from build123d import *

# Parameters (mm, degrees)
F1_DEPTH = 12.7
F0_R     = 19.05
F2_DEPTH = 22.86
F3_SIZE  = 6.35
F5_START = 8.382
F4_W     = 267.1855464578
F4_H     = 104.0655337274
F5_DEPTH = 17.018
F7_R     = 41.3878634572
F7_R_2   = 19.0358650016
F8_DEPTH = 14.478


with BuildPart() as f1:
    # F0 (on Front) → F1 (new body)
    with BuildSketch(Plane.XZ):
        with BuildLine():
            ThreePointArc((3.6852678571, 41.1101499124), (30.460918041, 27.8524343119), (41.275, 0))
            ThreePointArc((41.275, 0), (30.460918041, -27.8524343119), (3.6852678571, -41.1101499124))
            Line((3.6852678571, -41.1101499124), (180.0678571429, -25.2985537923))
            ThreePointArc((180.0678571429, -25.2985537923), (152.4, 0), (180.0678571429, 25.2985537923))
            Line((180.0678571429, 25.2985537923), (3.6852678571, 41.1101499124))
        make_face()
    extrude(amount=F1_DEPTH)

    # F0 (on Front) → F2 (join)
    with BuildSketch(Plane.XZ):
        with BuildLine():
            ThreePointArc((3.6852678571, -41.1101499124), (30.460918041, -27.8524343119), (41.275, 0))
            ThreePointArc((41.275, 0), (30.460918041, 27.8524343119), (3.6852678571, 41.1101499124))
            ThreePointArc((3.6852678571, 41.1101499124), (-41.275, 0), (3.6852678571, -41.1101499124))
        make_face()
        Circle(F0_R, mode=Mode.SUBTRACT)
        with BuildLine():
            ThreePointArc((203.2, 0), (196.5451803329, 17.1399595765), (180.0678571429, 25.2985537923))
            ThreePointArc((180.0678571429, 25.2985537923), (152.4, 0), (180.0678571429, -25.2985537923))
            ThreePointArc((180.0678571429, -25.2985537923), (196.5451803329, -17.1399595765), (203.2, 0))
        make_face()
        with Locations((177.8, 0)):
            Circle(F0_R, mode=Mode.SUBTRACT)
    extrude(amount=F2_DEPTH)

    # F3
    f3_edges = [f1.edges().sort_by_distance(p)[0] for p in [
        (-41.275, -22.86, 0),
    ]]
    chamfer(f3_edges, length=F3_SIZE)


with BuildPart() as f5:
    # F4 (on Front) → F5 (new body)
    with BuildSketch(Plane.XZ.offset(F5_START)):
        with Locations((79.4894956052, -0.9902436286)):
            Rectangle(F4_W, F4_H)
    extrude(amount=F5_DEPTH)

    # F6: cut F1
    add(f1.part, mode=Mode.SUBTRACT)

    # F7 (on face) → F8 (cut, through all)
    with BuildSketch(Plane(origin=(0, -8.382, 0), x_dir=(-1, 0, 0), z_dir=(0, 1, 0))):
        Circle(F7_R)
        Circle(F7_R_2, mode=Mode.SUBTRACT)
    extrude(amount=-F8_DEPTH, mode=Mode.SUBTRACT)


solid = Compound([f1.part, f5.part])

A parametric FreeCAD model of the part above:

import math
import FreeCAD as App
import Part
import Sketcher
Q = App.Units.Quantity


def edges_at(feature, points):
    """Names of the edges that pass closest to the given points."""
    edges = feature.Shape.Edges
    near = lambda p: min(range(len(edges)), key=lambda i: edges[i].distToShape(Part.Vertex(*p))[0])
    return sorted({f"Edge{near(p) + 1}" for p in points})


def add_polygon(sketch, points):
    """Adds a closed chain of lines whose ends are joined by coincident constraints."""
    first, n = sketch.GeometryCount, len(points)
    for a, b in zip(points, points[1:] + points[:1]):
        sketch.addGeometry(Part.LineSegment(App.Vector(*a, 0), App.Vector(*b, 0)), False)
    for i in range(n):
        sketch.addConstraint(Sketcher.Constraint("Coincident", first + i, 2, first + (i + 1) % n, 1))

doc = App.newDocument("Part")
body = doc.addObject("PartDesign::Body", "Body")

# Sketch on XZ plane
sketch1 = body.newObject("Sketcher::SketchObject", "Sketch")
sketch1.AttachmentSupport = (doc.getObject("XZ_Plane"), [""])
sketch1.MapMode = "FlatFace"
sketch1.addGeometry([
    Part.ArcOfCircle(Part.Circle(App.Vector(0, 0, 0), App.Vector(0, 0, 1), 41), math.radians(-85), math.radians(85)),
    Part.LineSegment(App.Vector(4, -41, 0), App.Vector(180, -25, 0)),
    Part.ArcOfCircle(Part.Circle(App.Vector(178, 0, 0), App.Vector(0, 0, 1), 25), math.radians(85), math.radians(275)),
    Part.LineSegment(App.Vector(180, 25, 0), App.Vector(4, 41, 0)),
], False)
sketch1.addConstraint([
    Sketcher.Constraint("Tangent", 0, 1, 1, 1),
    Sketcher.Constraint("Tangent", 1, 2, 2, 2),
    Sketcher.Constraint("Tangent", 2, 1, 3, 1),
    Sketcher.Constraint("Tangent", 3, 2, 0, 2),
    Sketcher.Constraint("Coincident", 0, 3, -1, 1),
    Sketcher.Constraint("PointOnObject", 2, 3, -1),
    Sketcher.Constraint("Radius", 2, Q("1 in")),
    Sketcher.Constraint("DistanceX", -1, 1, 2, 3, Q("7 in")),
    Sketcher.Constraint("Radius", 0, Q("1.625 in")),
])
pad1 = body.newObject("PartDesign::Pad", "Pad")
pad1.Profile = sketch1
pad1.Length = Q("0.5 in")

# Sketch on XZ plane
sketch2 = body.newObject("Sketcher::SketchObject", "Sketch001")
sketch2.AttachmentSupport = (doc.getObject("XZ_Plane"), [""])
sketch2.MapMode = "FlatFace"
sketch2.addGeometry([
    Part.Circle(App.Vector(0, 0, 0), App.Vector(0, 0, 1), 41),  # 0
    Part.Circle(App.Vector(0, 0, 0), App.Vector(0, 0, 1), 19),  # 1
    Part.ArcOfCircle(Part.Circle(App.Vector(178, 0, 0), App.Vector(0, 0, 1), 25), math.radians(0), math.radians(85)),  # 2
    Part.ArcOfCircle(Part.Circle(App.Vector(178, 0, 0), App.Vector(0, 0, 1), 25), math.radians(85), math.radians(275)),  # 3
    Part.ArcOfCircle(Part.Circle(App.Vector(178, 0, 0), App.Vector(0, 0, 1), 25), math.radians(-85), math.radians(0)),  # 4
    Part.Circle(App.Vector(178, 0, 0), App.Vector(0, 0, 1), 19),  # 5
], False)
sketch2.addConstraint([
    Sketcher.Constraint("Tangent", 2, 2, 3, 1),
    Sketcher.Constraint("Tangent", 3, 2, 4, 1),
    Sketcher.Constraint("Tangent", 4, 2, 2, 1),
    Sketcher.Constraint("Coincident", 0, 3, -1, 1),
    Sketcher.Constraint("Coincident", 1, 3, -1, 1),
    Sketcher.Constraint("Coincident", 5, 3, 2, 3),
    Sketcher.Constraint("Equal", 1, 5),
    Sketcher.Constraint("Symmetric", 2, 2, 3, 2, -1),
    Sketcher.Constraint("PointOnObject", 4, 2, -1),
    Sketcher.Constraint("Radius", 2, Q("1 in")),
    Sketcher.Constraint("Diameter", 1, Q("1.5 in")),
    Sketcher.Constraint("Diameter", 0, Q("3.25 in")),
    Sketcher.Constraint("DistanceX", -1, 1, 2, 3, Q("7 in")),
    Sketcher.Constraint("DistanceX", -1, 1, 2, 2, 180.067857),
])
pad2 = body.newObject("PartDesign::Pad", "Pad001")
pad2.Profile = sketch2
pad2.Length = Q("0.9 in")
doc.recompute()

chamfer = body.newObject("PartDesign::Chamfer", "Chamfer")
chamfer.Base = (pad2, edges_at(pad2, [(-3.685, -22.86, -41.11)]))
chamfer.Size = Q("0.25 in")
body2 = doc.addObject("PartDesign::Body", "Body001")

# Sketch on XZ plane
sketch3 = body2.newObject("Sketcher::SketchObject", "Sketch002")
sketch3.AttachmentSupport = (doc.getObject("XZ_Plane001"), [""])
sketch3.MapMode = "FlatFace"
sketch3.AttachmentOffset = App.Placement(App.Vector(0, 0, 0.33 * 25.4), App.Rotation())
add_polygon(sketch3, [(-54, 51), (-54, -53), (213, -53), (213, 51)])  # lines 0-3
sketch3.addConstraint([
    Sketcher.Constraint("Vertical", 0),
    Sketcher.Constraint("Horizontal", 1),
    Sketcher.Constraint("Vertical", 2),
    Sketcher.Constraint("Horizontal", 3),
    Sketcher.Constraint("DistanceX", 1, 1, 1, 2, 267.185546),
    Sketcher.Constraint("DistanceY", 0, 2, 0, 1, 104.065534),
    Sketcher.Constraint("DistanceY", 0, 2, -1, 1, 53.02301),
    Sketcher.Constraint("DistanceX", -1, 1, 1, 2, 213.082269),
])
pad3 = body2.newObject("PartDesign::Pad", "Pad002")
pad3.Profile = sketch3
pad3.Length = Q("0.67 in")
doc.recompute()

body3 = doc.addObject("PartDesign::Body", "Body002")
body3.BaseFeature = body
boolean = body2.newObject("PartDesign::Boolean", "Boolean")
boolean.Type = "Cut"
boolean.addObjects([body3])
doc.recompute()

# Sketch on XZ plane
sketch4 = body2.newObject("Sketcher::SketchObject", "Sketch003")
sketch4.AttachmentSupport = (doc.getObject("XZ_Plane001"), [""])
sketch4.MapMode = "FlatFace"
sketch4.AttachmentOffset = App.Placement(App.Vector(0, 0, 0.33 * 25.4), App.Rotation())
sketch4.addGeometry([
    Part.Circle(App.Vector(0, 0, 0), App.Vector(0, 0, 1), 41),
    Part.Circle(App.Vector(0, 0, 0), App.Vector(0, 0, 1), 19),
], False)
sketch4.addConstraint([
    Sketcher.Constraint("Coincident", 0, 3, -1, 1),
    Sketcher.Constraint("Coincident", 1, 3, -1, 1),
    Sketcher.Constraint("Diameter", 1, 38.07173),
    Sketcher.Constraint("Diameter", 0, 82.775727),
])
pocket1 = body2.newObject("PartDesign::Pocket", "Pocket")
pocket1.Profile = sketch4
pocket1.Length = Q("0.57 in")
pocket1.Reversed = True

doc.recompute()
